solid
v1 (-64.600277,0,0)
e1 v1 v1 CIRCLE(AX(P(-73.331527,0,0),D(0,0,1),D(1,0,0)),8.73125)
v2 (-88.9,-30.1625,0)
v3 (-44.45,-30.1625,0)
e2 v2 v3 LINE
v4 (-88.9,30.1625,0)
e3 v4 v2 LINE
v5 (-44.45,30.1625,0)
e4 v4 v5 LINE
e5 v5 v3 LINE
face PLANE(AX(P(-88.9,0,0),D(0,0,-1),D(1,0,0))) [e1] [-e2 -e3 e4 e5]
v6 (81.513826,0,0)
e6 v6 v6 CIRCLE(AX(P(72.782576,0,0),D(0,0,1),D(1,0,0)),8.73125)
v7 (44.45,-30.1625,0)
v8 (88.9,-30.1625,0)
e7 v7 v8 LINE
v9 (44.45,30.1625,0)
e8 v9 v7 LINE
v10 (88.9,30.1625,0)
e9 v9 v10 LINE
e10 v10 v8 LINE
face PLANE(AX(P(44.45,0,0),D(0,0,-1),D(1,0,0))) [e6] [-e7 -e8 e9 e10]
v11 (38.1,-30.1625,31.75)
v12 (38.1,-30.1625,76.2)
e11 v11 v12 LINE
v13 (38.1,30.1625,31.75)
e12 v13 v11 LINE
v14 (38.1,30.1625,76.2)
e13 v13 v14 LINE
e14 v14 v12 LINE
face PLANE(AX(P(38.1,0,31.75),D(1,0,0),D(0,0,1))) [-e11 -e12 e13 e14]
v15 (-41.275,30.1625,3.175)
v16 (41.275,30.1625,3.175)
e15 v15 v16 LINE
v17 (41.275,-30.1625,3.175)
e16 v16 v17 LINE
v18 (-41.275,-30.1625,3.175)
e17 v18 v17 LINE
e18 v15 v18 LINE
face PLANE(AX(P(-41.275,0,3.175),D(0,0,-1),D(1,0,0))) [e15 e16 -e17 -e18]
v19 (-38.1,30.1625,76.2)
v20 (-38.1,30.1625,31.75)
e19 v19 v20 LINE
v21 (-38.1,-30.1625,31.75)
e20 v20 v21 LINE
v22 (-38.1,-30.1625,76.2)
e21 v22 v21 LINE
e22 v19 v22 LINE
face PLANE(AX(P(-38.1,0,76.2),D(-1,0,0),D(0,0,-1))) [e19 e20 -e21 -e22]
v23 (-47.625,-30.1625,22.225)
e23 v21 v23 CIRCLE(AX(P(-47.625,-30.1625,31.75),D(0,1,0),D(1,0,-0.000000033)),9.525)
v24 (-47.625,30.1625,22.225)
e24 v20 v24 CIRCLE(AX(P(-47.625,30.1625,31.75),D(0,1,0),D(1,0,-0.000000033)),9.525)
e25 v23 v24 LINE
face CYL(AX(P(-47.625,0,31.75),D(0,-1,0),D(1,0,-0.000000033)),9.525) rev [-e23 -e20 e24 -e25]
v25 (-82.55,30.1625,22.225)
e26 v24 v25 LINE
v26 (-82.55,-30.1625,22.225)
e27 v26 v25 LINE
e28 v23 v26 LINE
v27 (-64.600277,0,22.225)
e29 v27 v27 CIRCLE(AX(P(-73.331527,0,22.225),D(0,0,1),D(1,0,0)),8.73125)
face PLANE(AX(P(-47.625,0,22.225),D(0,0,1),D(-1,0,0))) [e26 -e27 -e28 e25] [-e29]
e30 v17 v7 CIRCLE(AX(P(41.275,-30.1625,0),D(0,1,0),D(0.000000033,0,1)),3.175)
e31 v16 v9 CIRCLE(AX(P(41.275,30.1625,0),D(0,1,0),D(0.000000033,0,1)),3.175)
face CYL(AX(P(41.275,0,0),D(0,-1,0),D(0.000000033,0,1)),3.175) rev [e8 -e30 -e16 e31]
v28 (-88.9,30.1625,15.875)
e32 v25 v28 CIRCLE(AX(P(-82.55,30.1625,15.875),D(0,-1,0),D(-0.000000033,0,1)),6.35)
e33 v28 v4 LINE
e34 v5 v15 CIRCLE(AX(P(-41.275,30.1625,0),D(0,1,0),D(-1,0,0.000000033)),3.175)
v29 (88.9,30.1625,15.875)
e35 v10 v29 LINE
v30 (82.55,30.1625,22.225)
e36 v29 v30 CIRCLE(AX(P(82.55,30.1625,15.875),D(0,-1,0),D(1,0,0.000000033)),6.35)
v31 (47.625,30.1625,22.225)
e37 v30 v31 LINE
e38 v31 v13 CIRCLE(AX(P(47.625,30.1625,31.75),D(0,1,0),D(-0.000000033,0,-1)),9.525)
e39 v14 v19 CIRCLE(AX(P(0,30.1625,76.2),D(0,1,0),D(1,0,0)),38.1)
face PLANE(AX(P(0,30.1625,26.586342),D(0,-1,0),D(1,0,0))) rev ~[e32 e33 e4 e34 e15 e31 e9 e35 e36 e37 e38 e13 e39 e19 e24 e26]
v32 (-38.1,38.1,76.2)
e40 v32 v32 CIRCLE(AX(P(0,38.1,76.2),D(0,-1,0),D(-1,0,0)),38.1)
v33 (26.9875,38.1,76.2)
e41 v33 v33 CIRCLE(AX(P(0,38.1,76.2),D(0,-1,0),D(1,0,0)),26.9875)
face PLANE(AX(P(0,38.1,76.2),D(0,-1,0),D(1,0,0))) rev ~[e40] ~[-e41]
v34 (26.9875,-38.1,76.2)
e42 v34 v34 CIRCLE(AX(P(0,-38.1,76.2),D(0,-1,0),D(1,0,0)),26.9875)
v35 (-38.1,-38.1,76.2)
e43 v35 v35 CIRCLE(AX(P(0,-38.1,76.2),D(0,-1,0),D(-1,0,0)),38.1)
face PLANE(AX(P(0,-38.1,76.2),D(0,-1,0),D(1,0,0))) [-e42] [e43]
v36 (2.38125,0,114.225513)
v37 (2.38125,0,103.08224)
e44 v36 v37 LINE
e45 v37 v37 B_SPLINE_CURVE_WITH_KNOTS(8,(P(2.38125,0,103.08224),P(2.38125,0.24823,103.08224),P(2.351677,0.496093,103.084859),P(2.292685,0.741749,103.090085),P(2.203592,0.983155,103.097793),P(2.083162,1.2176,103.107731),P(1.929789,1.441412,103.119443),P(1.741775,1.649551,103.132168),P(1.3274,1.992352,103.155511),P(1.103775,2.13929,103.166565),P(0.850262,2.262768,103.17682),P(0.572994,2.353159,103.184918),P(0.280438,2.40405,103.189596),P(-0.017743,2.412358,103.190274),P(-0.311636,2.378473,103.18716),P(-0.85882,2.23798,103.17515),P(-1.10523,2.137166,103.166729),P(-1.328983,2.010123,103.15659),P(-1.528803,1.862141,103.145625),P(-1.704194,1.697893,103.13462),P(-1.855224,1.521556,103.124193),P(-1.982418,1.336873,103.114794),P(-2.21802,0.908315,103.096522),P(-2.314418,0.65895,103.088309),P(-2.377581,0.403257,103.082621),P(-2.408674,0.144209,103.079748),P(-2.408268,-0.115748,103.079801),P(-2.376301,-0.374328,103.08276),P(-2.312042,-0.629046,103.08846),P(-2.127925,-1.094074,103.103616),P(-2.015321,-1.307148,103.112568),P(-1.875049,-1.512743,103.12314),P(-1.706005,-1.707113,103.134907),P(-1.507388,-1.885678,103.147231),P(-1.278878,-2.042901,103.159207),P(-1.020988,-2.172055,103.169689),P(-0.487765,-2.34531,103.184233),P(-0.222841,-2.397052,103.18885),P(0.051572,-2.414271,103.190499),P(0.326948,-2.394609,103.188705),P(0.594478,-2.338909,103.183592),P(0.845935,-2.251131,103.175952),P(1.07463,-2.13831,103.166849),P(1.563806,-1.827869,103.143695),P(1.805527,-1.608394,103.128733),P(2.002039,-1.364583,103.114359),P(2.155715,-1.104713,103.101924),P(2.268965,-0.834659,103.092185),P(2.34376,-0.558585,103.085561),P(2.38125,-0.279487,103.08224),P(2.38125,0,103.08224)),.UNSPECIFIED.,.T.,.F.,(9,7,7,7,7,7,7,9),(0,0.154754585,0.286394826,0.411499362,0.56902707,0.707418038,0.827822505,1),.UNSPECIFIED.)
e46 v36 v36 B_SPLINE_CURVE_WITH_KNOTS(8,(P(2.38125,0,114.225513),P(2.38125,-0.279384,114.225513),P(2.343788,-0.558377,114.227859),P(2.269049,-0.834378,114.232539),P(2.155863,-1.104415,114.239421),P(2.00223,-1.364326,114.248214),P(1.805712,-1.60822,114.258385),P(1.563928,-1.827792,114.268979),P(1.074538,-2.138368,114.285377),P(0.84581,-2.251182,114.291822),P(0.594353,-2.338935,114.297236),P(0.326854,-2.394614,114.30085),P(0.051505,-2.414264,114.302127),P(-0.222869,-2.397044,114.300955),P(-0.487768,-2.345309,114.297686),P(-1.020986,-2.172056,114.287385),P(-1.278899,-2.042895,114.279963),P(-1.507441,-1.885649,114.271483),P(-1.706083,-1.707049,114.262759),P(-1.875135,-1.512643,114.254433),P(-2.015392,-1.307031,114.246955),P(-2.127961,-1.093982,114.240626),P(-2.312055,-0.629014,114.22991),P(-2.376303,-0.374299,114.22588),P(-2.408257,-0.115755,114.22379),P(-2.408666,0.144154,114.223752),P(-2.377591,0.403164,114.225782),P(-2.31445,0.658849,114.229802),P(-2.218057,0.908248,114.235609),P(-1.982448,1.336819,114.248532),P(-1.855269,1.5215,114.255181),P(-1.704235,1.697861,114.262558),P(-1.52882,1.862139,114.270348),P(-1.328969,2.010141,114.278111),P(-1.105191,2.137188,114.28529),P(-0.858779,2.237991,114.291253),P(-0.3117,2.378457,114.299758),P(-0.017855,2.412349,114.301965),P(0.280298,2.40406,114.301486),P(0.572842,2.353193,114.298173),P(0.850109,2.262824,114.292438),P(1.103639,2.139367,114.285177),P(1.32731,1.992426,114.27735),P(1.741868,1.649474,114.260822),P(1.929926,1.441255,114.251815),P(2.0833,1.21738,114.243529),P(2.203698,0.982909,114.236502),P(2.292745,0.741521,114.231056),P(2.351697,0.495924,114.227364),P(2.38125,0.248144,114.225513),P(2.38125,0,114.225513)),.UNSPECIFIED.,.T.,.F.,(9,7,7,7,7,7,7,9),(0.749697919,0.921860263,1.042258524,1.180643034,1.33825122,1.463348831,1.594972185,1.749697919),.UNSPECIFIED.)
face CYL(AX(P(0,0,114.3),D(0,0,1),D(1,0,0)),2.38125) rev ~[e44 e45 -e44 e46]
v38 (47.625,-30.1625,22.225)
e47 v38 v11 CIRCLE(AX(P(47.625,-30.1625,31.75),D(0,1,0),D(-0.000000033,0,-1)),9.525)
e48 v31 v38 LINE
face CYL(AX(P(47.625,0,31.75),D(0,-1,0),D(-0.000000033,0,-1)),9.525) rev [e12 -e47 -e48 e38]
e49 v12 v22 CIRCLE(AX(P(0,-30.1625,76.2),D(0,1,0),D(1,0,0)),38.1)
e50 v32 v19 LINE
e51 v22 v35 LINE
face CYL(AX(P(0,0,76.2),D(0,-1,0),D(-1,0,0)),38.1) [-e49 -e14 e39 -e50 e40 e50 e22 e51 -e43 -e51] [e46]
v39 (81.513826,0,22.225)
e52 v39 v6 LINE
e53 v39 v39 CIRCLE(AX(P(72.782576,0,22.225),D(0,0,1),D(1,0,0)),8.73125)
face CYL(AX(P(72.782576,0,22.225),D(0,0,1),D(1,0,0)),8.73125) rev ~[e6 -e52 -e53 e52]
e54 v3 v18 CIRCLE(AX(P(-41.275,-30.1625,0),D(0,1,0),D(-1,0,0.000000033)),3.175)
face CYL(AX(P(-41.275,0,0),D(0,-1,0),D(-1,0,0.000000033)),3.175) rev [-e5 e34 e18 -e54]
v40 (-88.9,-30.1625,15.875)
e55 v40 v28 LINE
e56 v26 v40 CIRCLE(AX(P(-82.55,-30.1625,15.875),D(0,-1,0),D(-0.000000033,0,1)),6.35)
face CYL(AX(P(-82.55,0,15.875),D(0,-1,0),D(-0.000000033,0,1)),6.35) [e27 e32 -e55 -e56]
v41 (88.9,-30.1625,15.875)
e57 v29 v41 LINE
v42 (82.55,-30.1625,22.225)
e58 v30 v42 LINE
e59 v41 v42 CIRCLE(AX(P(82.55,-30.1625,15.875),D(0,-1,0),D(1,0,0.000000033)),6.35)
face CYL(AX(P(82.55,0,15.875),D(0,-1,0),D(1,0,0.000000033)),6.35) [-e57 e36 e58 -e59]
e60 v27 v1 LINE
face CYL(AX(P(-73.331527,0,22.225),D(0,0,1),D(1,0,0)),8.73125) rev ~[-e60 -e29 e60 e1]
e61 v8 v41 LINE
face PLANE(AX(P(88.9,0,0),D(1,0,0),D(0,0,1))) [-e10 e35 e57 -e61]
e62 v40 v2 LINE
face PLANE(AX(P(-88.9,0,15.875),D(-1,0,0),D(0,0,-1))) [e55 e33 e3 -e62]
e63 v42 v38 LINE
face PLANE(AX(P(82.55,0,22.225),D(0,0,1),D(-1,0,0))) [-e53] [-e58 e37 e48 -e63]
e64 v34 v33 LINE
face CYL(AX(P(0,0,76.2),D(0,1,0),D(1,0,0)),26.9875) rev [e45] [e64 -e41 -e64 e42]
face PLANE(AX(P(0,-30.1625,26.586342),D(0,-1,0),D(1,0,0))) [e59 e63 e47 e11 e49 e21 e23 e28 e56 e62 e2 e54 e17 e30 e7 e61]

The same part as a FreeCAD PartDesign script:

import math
import FreeCAD as App
import Part
import Sketcher

V = App.Vector
Q = App.Units.Quantity

doc = App.newDocument("Part")
body = doc.addObject("PartDesign::Body", "Body")

# Sketch on XZ plane
sketch1 = body.newObject("Sketcher::SketchObject", "Sketch")
sketch1.AttachmentSupport = (doc.getObject("XZ_Plane"), [""])
sketch1.MapMode = "FlatFace"
sketch1.addGeometry([
    Part.LineSegment(V(-88.9, 15.9, 0), V(-88.9, 0, 0)),  # 0
    Part.LineSegment(V(-88.9, 0, 0), V(-44.5, 0, 0)),  # 1
    Part.ArcOfCircle(Part.Circle(V(-41.3, 0, 0), V(0, 0, 1), 3.2), math.radians(90), math.radians(180)),  # 2
    Part.LineSegment(V(-41.3, 3.2, 0), V(41.3, 3.2, 0)),  # 3
    Part.ArcOfCircle(Part.Circle(V(41.3, 0, 0), V(0, 0, 1), 3.2), math.radians(0), math.radians(90)),  # 4
    Part.LineSegment(V(44.5, 0, 0), V(88.9, 0, 0)),  # 5
    Part.LineSegment(V(88.9, 0, 0), V(88.9, 15.9, 0)),  # 6
    Part.ArcOfCircle(Part.Circle(V(82.5, 15.9, 0), V(0, 0, 1), 6.4), math.radians(0), math.radians(90)),  # 7
    Part.LineSegment(V(82.5, 22.2, 0), V(47.6, 22.2, 0)),  # 8
    Part.ArcOfCircle(Part.Circle(V(47.6, 31.8, 0), V(0, 0, 1), 9.5), math.radians(-180), math.radians(-90)),  # 9
    Part.LineSegment(V(38.1, 31.8, 0), V(38.1, 76.2, 0)),  # 10
    Part.ArcOfCircle(Part.Circle(V(0, 76.2, 0), V(0, 0, 1), 38.1), math.radians(180), math.radians(360)),  # 11
    Part.LineSegment(V(-38.1, 76.2, 0), V(-38.1, 31.8, 0)),  # 12
    Part.ArcOfCircle(Part.Circle(V(-47.6, 31.8, 0), V(0, 0, 1), 9.5), math.radians(-90), math.radians(0)),  # 13
    Part.LineSegment(V(-47.6, 22.2, 0), V(-82.5, 22.2, 0)),  # 14
    Part.ArcOfCircle(Part.Circle(V(-82.5, 15.9, 0), V(0, 0, 1), 6.4), math.radians(90), math.radians(180)),  # 15
], False)
sketch1.addConstraint([
    Sketcher.Constraint("Coincident", 0, 2, 1, 1),
    Sketcher.Constraint("Coincident", 1, 2, 2, 2),
    Sketcher.Constraint("Tangent", 2, 1, 3, 1),
    Sketcher.Constraint("Tangent", 3, 2, 4, 2),
    Sketcher.Constraint("Coincident", 4, 1, 5, 1),
    Sketcher.Constraint("Coincident", 5, 2, 6, 1),
    Sketcher.Constraint("Tangent", 6, 2, 7, 1),
    Sketcher.Constraint("Tangent", 7, 2, 8, 1),
    Sketcher.Constraint("Tangent", 8, 2, 9, 2),
    Sketcher.Constraint("Tangent", 9, 1, 10, 1),
    Sketcher.Constraint("Tangent", 10, 2, 11, 2),
    Sketcher.Constraint("Tangent", 11, 1, 12, 1),
    Sketcher.Constraint("Tangent", 12, 2, 13, 2),
    Sketcher.Constraint("Tangent", 13, 1, 14, 1),
    Sketcher.Constraint("Tangent", 14, 2, 15, 1),
    Sketcher.Constraint("Tangent", 15, 2, 0, 1),
    Sketcher.Constraint("Vertical", 0),
    Sketcher.Constraint("Horizontal", 1),
    Sketcher.Constraint("Horizontal", 3),
    Sketcher.Constraint("Horizontal", 5),
    Sketcher.Constraint("Vertical", 6),
    Sketcher.Constraint("Horizontal", 8),
    Sketcher.Constraint("Vertical", 10),
    Sketcher.Constraint("Vertical", 12),
    Sketcher.Constraint("Horizontal", 14),
    Sketcher.Constraint("Equal", 2, 4),
    Sketcher.Constraint("Equal", 9, 13),
    Sketcher.Constraint("Equal", 7, 15),
    Sketcher.Constraint("Symmetric", 2, 3, 4, 3, -1, 1),
    Sketcher.Constraint("Symmetric", 0, 2, 5, 2, -1, 1),
    Sketcher.Constraint("Symmetric", 9, 3, 13, 3, -2),
    Sketcher.Constraint("PointOnObject", 0, 2, -1),
    Sketcher.Constraint("Equal", 5, 10),
    Sketcher.Constraint("Radius", 11, Q("1.5 in")),
    Sketcher.Constraint("Radius", 7, Q("0.25 in")),
    Sketcher.Constraint("DistanceY", -1, 1, 11, 3, Q("3 in")),
    Sketcher.Constraint("Radius", 2, Q("0.125 in")),
    Sketcher.Constraint("Radius", 9, Q("0.375 in")),
    Sketcher.Constraint("DistanceX", 1, 1, 1, 2, Q("1.75 in")),
    Sketcher.Constraint("DistanceX", 3, 1, 3, 2, Q("3.25 in")),
])
pad1 = body.newObject("PartDesign::Pad", "Pad")
pad1.Profile = sketch1
pad1.Length = Q("2.375 in")
pad1.Midplane = True

# Sketch on XZ plane
sketch2 = body.newObject("Sketcher::SketchObject", "Sketch001")
sketch2.AttachmentSupport = (doc.getObject("XZ_Plane"), [""])
sketch2.MapMode = "FlatFace"
sketch2.addGeometry([
    Part.Circle(V(0, 76, 0), V(0, 0, 1), 38),
    Part.Circle(V(0, 76, 0), V(0, 0, 1), 27),
], False)
sketch2.addConstraint([
    Sketcher.Constraint("Coincident", 1, 3, 0, 3),
    Sketcher.Constraint("PointOnObject", 0, 3, -2),
    Sketcher.Constraint("Diameter", 0, Q("3 in")),
    Sketcher.Constraint("Diameter", 1, Q("2.125 in")),
    Sketcher.Constraint("DistanceY", -1, 1, 0, 3, Q("3 in")),
])
pad2 = body.newObject("PartDesign::Pad", "Pad001")
pad2.Profile = sketch2
pad2.Length = Q("3 in")
pad2.Midplane = True

# Sketch on XY plane
sketch3 = body.newObject("Sketcher::SketchObject", "Sketch002")
sketch3.AttachmentSupport = (doc.getObject("XY_Plane"), [""])
sketch3.MapMode = "FlatFace"
sketch3.AttachmentOffset = App.Placement(V(0, 0, 0.875 * 25.4), App.Rotation())
sketch3.addGeometry(Part.Circle(V(73, 0, 0), V(0, 0, 1), 9), False)
sketch3.addConstraint([
    Sketcher.Constraint("PointOnObject", 0, 3, -1),
    Sketcher.Constraint("Diameter", 0, Q("0.6875 in")),
    Sketcher.Constraint("DistanceX", -1, 1, 0, 3, Q("72.782576 mm")),
])
pocket1 = body.newObject("PartDesign::Pocket", "Pocket")
pocket1.Profile = sketch3
pocket1.Length = Q("1 in")

# Sketch on XY plane
sketch4 = body.newObject("Sketcher::SketchObject", "Sketch003")
sketch4.AttachmentSupport = (doc.getObject("XY_Plane"), [""])
sketch4.MapMode = "FlatFace"
sketch4.AttachmentOffset = App.Placement(V(0, 0, 0.875 * 25.4), App.Rotation())
sketch4.addGeometry(Part.Circle(V(-73, 0, 0), V(0, 0, 1), 9), False)
sketch4.addConstraint([
    Sketcher.Constraint("PointOnObject", 0, 3, -1),
    Sketcher.Constraint("Diameter", 0, Q("0.6875 in")),
    Sketcher.Constraint("DistanceX", 0, 3, -1, 1, Q("73.331527 mm")),
])
pocket2 = body.newObject("PartDesign::Pocket", "Pocket001")
pocket2.Profile = sketch4
pocket2.Length = Q("1 in")

# Sketch on XY plane
sketch5 = body.newObject("Sketcher::SketchObject", "Sketch004")
sketch5.AttachmentSupport = (doc.getObject("XY_Plane"), [""])
sketch5.MapMode = "FlatFace"
sketch5.AttachmentOffset = App.Placement(V(0, 0, 4.5 * 25.4), App.Rotation())
sketch5.addGeometry(Part.Circle(V(0, 0, 0), V(0, 0, 1), 2.4), False)
sketch5.addConstraint([
    Sketcher.Constraint("Coincident", 0, 3, -1, 1),
    Sketcher.Constraint("Diameter", 0, Q("0.1875 in")),
])
pocket3 = body.newObject("PartDesign::Pocket", "Pocket002")
pocket3.Profile = sketch5
pocket3.Length = Q("1 in")

doc.recompute()
